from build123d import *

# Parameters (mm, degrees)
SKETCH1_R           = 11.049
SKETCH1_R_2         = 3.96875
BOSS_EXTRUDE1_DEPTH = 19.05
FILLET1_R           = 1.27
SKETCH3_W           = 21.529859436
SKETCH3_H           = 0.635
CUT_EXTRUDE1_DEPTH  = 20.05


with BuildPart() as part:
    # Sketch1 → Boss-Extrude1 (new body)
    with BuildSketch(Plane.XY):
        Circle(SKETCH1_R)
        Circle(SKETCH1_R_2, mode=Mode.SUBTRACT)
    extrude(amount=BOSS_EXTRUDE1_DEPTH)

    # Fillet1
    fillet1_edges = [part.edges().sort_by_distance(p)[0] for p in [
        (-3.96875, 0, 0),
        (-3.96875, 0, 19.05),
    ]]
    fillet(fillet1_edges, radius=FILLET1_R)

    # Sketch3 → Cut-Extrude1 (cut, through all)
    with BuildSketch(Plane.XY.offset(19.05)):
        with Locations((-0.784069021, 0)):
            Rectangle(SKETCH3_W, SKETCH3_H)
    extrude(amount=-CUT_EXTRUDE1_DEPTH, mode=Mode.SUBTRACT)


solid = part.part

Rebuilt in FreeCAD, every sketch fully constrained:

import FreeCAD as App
import Part
import Sketcher
from FreeCAD import Vector
Q = App.Units.Quantity


def edges_at(feature, points):
    """Names of the edges that pass closest to the given points."""
    edges = feature.Shape.Edges
    near = lambda p: min(range(len(edges)), key=lambda i: edges[i].distToShape(Part.Vertex(*p))[0])
    return sorted({f"Edge{near(p) + 1}" for p in points})


def add_polygon(sketch, points):
    """Adds a closed chain of lines whose ends are joined by coincident constraints."""
    first, n = sketch.GeometryCount, len(points)
    for a, b in zip(points, points[1:] + points[:1]):
        sketch.addGeometry(Part.LineSegment(App.Vector(*a, 0), App.Vector(*b, 0)), False)
    for i in range(n):
        sketch.addConstraint(Sketcher.Constraint("Coincident", first + i, 2, first + (i + 1) % n, 1))

doc = App.newDocument("Part")
body = doc.addObject("PartDesign::Body", "Body")

sketch1 = body.newObject("Sketcher::SketchObject", "Sketch")
sketch1.AttachmentSupport = (doc.getObject("XY_Plane"), [""])
sketch1.MapMode = "FlatFace"
sketch1.addGeometry([
    Part.Circle(Vector(0, 0, 0), Vector(0, 0, 1), 11),
    Part.Circle(Vector(0, 0, 0), Vector(0, 0, 1), 4),
], False)
sketch1.addConstraint([
    Sketcher.Constraint("Coincident", 0, 3, -1, 1),
    Sketcher.Constraint("Coincident", 1, 3, -1, 1),
    Sketcher.Constraint("Diameter", 0, Q("0.87 in")),
    Sketcher.Constraint("Diameter", 1, Q("0.3125 in")),
])
pad1 = body.newObject("PartDesign::Pad", "Pad")
pad1.Profile = sketch1
pad1.Length = Q("0.75 in")
doc.recompute()

fillet = body.newObject("PartDesign::Fillet", "Fillet")
fillet.Base = (pad1, edges_at(pad1, [(-3.969, 0, 0), (-3.969, 0, 19.05)]))
fillet.Radius = Q("0.05 in")

sketch2 = body.newObject("Sketcher::SketchObject", "Sketch001")
sketch2.AttachmentSupport = (doc.getObject("XY_Plane"), [""])
sketch2.MapMode = "FlatFace"
sketch2.AttachmentOffset = App.Placement(Vector(0, 0, 0.75 * 25.4), App.Rotation())
add_polygon(sketch2, [(-11.5, 0.3), (-11.5, -0.3), (10, -0.3), (10, 0.3)])
sketch2.addConstraint([
    Sketcher.Constraint("Vertical", 0),
    Sketcher.Constraint("Horizontal", 1),
    Sketcher.Constraint("Vertical", 2),
    Sketcher.Constraint("Horizontal", 3),
    Sketcher.Constraint("DistanceY", 0, 2, 0, 1, Q("0.025 in")),
    Sketcher.Constraint("DistanceY", 0, 2, -1, 1, Q("0.0125 in")),
    Sketcher.Constraint("DistanceX", 1, 1, 1, 2, Q("21.529859 mm")),
    Sketcher.Constraint("DistanceX", 0, 2, -1, 1, Q("11.548999 mm")),
])
pocket1 = body.newObject("PartDesign::Pocket", "Pocket")
pocket1.Profile = sketch2
pocket1.Type = "ThroughAll"

doc.recompute()
